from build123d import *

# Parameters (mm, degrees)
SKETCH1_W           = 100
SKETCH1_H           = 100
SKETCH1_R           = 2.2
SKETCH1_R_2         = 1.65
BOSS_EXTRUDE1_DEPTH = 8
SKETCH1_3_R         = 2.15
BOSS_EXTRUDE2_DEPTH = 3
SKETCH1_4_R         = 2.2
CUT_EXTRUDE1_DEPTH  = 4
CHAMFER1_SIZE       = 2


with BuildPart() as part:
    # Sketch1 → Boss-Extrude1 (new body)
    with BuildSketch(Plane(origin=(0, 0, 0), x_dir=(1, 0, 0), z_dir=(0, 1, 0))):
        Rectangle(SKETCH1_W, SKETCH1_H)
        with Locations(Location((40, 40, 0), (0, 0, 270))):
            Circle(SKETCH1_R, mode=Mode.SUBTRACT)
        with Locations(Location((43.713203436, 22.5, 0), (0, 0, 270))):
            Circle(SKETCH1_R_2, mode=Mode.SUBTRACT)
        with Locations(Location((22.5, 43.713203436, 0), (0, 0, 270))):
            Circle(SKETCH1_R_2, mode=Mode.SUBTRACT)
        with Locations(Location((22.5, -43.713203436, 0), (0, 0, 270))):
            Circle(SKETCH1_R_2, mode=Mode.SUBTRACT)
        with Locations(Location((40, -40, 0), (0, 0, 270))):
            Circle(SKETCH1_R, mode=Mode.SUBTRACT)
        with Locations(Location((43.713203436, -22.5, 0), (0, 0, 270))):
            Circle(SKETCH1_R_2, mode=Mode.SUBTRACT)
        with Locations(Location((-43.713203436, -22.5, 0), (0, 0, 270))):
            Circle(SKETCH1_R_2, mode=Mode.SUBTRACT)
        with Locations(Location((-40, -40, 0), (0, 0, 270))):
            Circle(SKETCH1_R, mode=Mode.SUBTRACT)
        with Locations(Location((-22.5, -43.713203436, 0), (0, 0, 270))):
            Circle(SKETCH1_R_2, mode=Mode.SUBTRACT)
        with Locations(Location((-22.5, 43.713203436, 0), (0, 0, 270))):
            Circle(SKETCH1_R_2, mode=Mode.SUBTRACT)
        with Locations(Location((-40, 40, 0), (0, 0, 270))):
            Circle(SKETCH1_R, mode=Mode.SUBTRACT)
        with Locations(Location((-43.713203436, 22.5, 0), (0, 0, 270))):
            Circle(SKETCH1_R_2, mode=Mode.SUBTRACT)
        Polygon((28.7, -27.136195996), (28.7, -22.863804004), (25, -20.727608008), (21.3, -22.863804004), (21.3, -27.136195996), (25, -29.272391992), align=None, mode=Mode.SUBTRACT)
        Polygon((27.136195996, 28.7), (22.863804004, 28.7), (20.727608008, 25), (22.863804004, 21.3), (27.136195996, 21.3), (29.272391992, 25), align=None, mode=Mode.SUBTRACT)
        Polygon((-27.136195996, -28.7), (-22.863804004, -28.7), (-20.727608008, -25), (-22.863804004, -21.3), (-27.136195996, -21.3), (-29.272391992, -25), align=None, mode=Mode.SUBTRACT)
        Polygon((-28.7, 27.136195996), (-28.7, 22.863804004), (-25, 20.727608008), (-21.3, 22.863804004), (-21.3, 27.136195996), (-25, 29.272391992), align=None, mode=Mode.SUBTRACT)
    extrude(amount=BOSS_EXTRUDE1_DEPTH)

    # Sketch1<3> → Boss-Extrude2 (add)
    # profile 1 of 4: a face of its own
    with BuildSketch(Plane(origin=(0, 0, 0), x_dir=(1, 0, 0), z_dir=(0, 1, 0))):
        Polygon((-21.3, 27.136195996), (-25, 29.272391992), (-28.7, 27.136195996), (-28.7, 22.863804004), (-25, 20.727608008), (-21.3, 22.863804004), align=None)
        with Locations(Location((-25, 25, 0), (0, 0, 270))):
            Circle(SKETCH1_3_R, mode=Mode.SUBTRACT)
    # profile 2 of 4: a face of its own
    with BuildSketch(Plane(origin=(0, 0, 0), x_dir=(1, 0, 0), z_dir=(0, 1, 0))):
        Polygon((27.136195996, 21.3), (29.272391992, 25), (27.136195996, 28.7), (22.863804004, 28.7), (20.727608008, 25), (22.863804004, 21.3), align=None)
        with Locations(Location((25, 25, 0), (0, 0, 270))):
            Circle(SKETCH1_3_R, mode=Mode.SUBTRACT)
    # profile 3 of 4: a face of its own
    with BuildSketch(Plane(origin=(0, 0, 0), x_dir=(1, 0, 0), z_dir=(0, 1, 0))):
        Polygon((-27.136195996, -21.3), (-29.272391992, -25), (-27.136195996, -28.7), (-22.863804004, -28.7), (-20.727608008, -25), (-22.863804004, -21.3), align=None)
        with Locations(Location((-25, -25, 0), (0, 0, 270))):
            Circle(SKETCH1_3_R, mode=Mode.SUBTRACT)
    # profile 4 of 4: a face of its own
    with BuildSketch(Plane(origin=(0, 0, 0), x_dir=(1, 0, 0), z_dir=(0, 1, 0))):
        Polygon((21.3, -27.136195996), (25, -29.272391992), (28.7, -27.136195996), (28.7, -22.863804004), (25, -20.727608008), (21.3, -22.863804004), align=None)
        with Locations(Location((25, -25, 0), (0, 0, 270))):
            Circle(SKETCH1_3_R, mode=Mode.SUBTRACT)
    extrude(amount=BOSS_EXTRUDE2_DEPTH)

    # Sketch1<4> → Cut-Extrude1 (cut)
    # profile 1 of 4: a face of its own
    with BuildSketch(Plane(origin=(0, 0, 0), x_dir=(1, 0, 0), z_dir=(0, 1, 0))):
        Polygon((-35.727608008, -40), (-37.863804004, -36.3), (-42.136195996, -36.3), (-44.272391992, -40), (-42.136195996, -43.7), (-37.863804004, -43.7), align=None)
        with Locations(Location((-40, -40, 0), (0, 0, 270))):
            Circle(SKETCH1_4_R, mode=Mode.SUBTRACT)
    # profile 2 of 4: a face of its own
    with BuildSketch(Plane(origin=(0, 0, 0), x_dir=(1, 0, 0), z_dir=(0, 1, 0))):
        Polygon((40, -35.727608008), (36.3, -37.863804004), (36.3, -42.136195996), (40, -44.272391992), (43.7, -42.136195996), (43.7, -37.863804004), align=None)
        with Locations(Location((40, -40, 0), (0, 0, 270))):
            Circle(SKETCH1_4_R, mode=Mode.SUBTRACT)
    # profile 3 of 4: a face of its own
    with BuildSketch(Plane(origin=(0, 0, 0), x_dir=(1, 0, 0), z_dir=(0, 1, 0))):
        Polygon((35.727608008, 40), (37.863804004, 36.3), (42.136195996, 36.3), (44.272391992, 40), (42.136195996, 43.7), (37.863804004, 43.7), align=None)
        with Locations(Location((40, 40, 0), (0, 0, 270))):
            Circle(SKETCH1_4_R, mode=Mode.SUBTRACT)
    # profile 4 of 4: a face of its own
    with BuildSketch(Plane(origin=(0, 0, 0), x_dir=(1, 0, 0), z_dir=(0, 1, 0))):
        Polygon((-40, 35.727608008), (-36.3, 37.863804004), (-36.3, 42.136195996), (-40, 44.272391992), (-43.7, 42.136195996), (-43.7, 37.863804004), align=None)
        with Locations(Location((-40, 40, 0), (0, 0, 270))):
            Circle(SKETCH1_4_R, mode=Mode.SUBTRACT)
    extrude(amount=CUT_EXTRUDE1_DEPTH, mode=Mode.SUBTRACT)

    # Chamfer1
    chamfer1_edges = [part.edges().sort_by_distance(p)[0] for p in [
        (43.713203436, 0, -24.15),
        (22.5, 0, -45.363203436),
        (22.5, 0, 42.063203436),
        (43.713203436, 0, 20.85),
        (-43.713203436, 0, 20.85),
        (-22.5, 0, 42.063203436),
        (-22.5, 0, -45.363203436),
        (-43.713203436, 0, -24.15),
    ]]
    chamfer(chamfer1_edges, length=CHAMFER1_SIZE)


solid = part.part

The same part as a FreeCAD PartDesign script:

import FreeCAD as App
import Part
import Sketcher
from FreeCAD import Vector
Q = App.Units.Quantity


def edges_at(feature, points):
    """Names of the edges that pass closest to the given points."""
    edges = feature.Shape.Edges
    near = lambda p: min(range(len(edges)), key=lambda i: edges[i].distToShape(Part.Vertex(*p))[0])
    return sorted({f"Edge{near(p) + 1}" for p in points})


def add_polygon(sketch, points):
    """Adds a closed chain of lines whose ends are joined by coincident constraints."""
    first, n = sketch.GeometryCount, len(points)
    for a, b in zip(points, points[1:] + points[:1]):
        sketch.addGeometry(Part.LineSegment(App.Vector(*a, 0), App.Vector(*b, 0)), False)
    for i in range(n):
        sketch.addConstraint(Sketcher.Constraint("Coincident", first + i, 2, first + (i + 1) % n, 1))

doc = App.newDocument("Part")
params = doc.addObject("Spreadsheet::Sheet", "Params")
for row, (alias, value) in enumerate([
    ("sketch1_diameter", "4.4 mm"),
    ("sketch1_diameter2", "3.3 mm"),
    ("sketch1_width", "100 mm"),
    ("pad1_length", "8 mm"),
    ("sketch2_diameter", "4.3 mm"),
    ("pad2_length", "3 mm"),
    ("sketch3_diameter", "4.4 mm"),
    ("pocket1_length", "4 mm"),
    ("chamfer_size", "2 mm"),
], start=1):
    params.set(f"A{row}", alias)
    params.set(f"B{row}", "=" + value)
    params.setAlias(f"B{row}", alias)

body = doc.addObject("PartDesign::Body", "Body")

sketch1 = body.newObject("Sketcher::SketchObject", "Sketch")
sketch1.AttachmentSupport = (doc.getObject("XZ_Plane"), [""])
sketch1.MapMode = "FlatFace"
add_polygon(sketch1, [(-50, -50), (-50, 50), (50, 50), (50, -50)])
sketch1.addGeometry(Part.Circle(Vector(-40, 40, 0), Vector(0, 0, 1), 2.2), False)
add_polygon(sketch1, [(-22.9, 28.7), (-27.1, 28.7), (-29.3, 25), (-27.1, 21.3), (-22.9, 21.3), (-20.7, 25)])
sketch1.addGeometry(Part.Circle(Vector(-22.5, 43.7, 0), Vector(0, 0, 1), 1.6), False)
sketch1.addGeometry(Part.Circle(Vector(-43.7, 22.5, 0), Vector(0, 0, 1), 1.6), False)
sketch1.addGeometry(Part.Circle(Vector(22.5, 43.7, 0), Vector(0, 0, 1), 1.6), False)
sketch1.addGeometry(Part.Circle(Vector(40, 40, 0), Vector(0, 0, 1), 2.2), False)
add_polygon(sketch1, [(28.7, 22.9), (28.7, 27.1), (25, 29.3), (21.3, 27.1), (21.3, 22.9), (25, 20.7)])
sketch1.addGeometry(Part.Circle(Vector(43.7, 22.5, 0), Vector(0, 0, 1), 1.6), False)
sketch1.addGeometry(Part.Circle(Vector(-43.7, -22.5, 0), Vector(0, 0, 1), 1.6), False)
add_polygon(sketch1, [(-28.7, -22.9), (-28.7, -27.1), (-25, -29.3), (-21.3, -27.1), (-21.3, -22.9), (-25, -20.7)])
sketch1.addGeometry(Part.Circle(Vector(-40, -40, 0), Vector(0, 0, 1), 2.2), False)
sketch1.addGeometry(Part.Circle(Vector(-22.5, -43.7, 0), Vector(0, 0, 1), 1.6), False)
sketch1.addGeometry(Part.Circle(Vector(43.7, -22.5, 0), Vector(0, 0, 1), 1.6), False)
sketch1.addGeometry(Part.Circle(Vector(22.5, -43.7, 0), Vector(0, 0, 1), 1.6), False)
add_polygon(sketch1, [(22.9, -28.7), (27.1, -28.7), (29.3, -25), (27.1, -21.3), (22.9, -21.3), (20.7, -25)])
sketch1.addGeometry(Part.Circle(Vector(40, -40, 0), Vector(0, 0, 1), 2.2), False)
sketch1.addConstraint(Sketcher.Constraint("Vertical", 0))
sketch1.addConstraint(Sketcher.Constraint("Horizontal", 1))
sketch1.addConstraint(Sketcher.Constraint("Vertical", 2))
sketch1.addConstraint(Sketcher.Constraint("Horizontal", 3))
sketch1.addConstraint(Sketcher.Constraint("Horizontal", 5))
sketch1.addConstraint(Sketcher.Constraint("Horizontal", 8))
sketch1.addConstraint(Sketcher.Constraint("Vertical", 15))
sketch1.addConstraint(Sketcher.Constraint("Vertical", 18))
sketch1.addConstraint(Sketcher.Constraint("Vertical", 23))
sketch1.addConstraint(Sketcher.Constraint("Vertical", 26))
sketch1.addConstraint(Sketcher.Constraint("Horizontal", 33))
sketch1.addConstraint(Sketcher.Constraint("Horizontal", 36))
sketch1.addConstraint(Sketcher.Constraint("Equal", 11, 12))
sketch1.addConstraint(Sketcher.Constraint("Equal", 12, 13))
sketch1.addConstraint(Sketcher.Constraint("Equal", 4, 14))
sketch1.addConstraint(Sketcher.Constraint("Equal", 13, 21))
sketch1.addConstraint(Sketcher.Constraint("Equal", 21, 22))
sketch1.addConstraint(Sketcher.Constraint("Equal", 14, 29))
sketch1.addConstraint(Sketcher.Constraint("Equal", 22, 30))
sketch1.addConstraint(Sketcher.Constraint("Equal", 30, 31))
sketch1.addConstraint(Sketcher.Constraint("Equal", 31, 32))
sketch1.addConstraint(Sketcher.Constraint("Equal", 29, 39))
sketch1.addConstraint(Sketcher.Constraint("Symmetric", 21, 3, 22, 3, -1, 1))
sketch1.addConstraint(Sketcher.Constraint("Symmetric", 14, 3, 29, 3, -1, 1))
sketch1.addConstraint(Sketcher.Constraint("Symmetric", 13, 3, 30, 3, -1, 1))
sketch1.addConstraint(Sketcher.Constraint("Symmetric", 12, 3, 31, 3, -1, 1))
sketch1.addConstraint(Sketcher.Constraint("Symmetric", 11, 3, 32, 3, -1, 1))
sketch1.addConstraint(Sketcher.Constraint("Symmetric", 4, 3, 39, 3, -1, 1))
sketch1.addConstraint(Sketcher.Constraint("Symmetric", 0, 2, 2, 2, -1, 1))
sketch1.addConstraint(Sketcher.Constraint("Symmetric", 15, 2, 23, 2, -1, 1))
sketch1.addConstraint(Sketcher.Constraint("Symmetric", 16, 2, 24, 2, -1, 1))
sketch1.addConstraint(Sketcher.Constraint("Symmetric", 17, 2, 25, 2, -1, 1))
sketch1.addConstraint(Sketcher.Constraint("Symmetric", 19, 2, 27, 2, -1, 1))
sketch1.addConstraint(Sketcher.Constraint("Symmetric", 5, 2, 33, 2, -1, 1))
sketch1.addConstraint(Sketcher.Constraint("Symmetric", 6, 2, 34, 2, -1, 1))
sketch1.addConstraint(Sketcher.Constraint("Symmetric", 7, 2, 35, 2, -1, 1))
sketch1.addConstraint(Sketcher.Constraint("Symmetric", 9, 2, 37, 2, -1, 1))
sketch1.addConstraint(Sketcher.Constraint("Symmetric", 11, 3, 13, 3, -2))
sketch1.addConstraint(Sketcher.Constraint("Symmetric", 4, 3, 14, 3, -2))
sketch1.addConstraint(Sketcher.Constraint("Symmetric", 12, 3, 21, 3, -2))
sketch1.addConstraint(Sketcher.Constraint("Parallel", 6, 9))
sketch1.addConstraint(Sketcher.Constraint("Parallel", 7, 10))
sketch1.addConstraint(Sketcher.Constraint("Perpendicular", 9, 16))
sketch1.addConstraint(Sketcher.Constraint("Perpendicular", 10, 17))
sketch1.addConstraint(Sketcher.Constraint("Parallel", 16, 19))
sketch1.addConstraint(Sketcher.Constraint("Parallel", 17, 20))
sketch1.addConstraint(Sketcher.Constraint("Parallel", 24, 27))
sketch1.addConstraint(Sketcher.Constraint("Parallel", 25, 28))
sketch1.addConstraint(Sketcher.Constraint("Parallel", 34, 37))
sketch1.addConstraint(Sketcher.Constraint("Parallel", 35, 38))
sketch1.addConstraint(Sketcher.Constraint("Horizontal", 6, 2, 9, 2))
sketch1.addConstraint(Sketcher.Constraint("Horizontal", 15, 2, 17, 2))
sketch1.addConstraint(Sketcher.Constraint("Horizontal", 18, 2, 20, 2))
sketch1.addConstraint(Sketcher.Constraint("Vertical", 5, 2, 7, 2))
sketch1.addConstraint(Sketcher.Constraint("Vertical", 8, 2, 10, 2))
sketch1.addConstraint(Sketcher.Constraint("Equal", 3, 0))
sketch1.addConstraint(Sketcher.Constraint("Equal", 36, 15))
sketch1.addConstraint(Sketcher.Constraint("Equal", 10, 16))
sketch1.addConstraint(Sketcher.Constraint("Diameter", 4, Q("4.4 mm")))
sketch1.addConstraint(Sketcher.Constraint("Diameter", 11, Q("3.3 mm")))
sketch1.addConstraint(Sketcher.Constraint("DistanceX", 1, 1, 1, 2, Q("100 mm")))
sketch1.addConstraint(Sketcher.Constraint("Angle", 6, Q("-120 deg")))
sketch1.addConstraint(Sketcher.Constraint("DistanceX", 4, 3, -1, 1, Q("40 mm")))
sketch1.addConstraint(Sketcher.Constraint("DistanceY", -1, 1, 4, 3, Q("40 mm")))
sketch1.addConstraint(Sketcher.Constraint("DistanceY", -1, 1, 6, 2, Q("25 mm")))
sketch1.addConstraint(Sketcher.Constraint("DistanceX", -1, 1, 16, 2, Q("25 mm")))
sketch1.addConstraint(Sketcher.Constraint("DistanceX", 11, 3, 13, 3, Q("45 mm")))
sketch1.addConstraint(Sketcher.Constraint("DistanceY", 22, 3, 12, 3, Q("45 mm")))
sketch1.addConstraint(Sketcher.Constraint("DistanceY", -1, 1, 5, 2, Q("28.7 mm")))
sketch1.addConstraint(Sketcher.Constraint("DistanceX", 5, 2, 5, 1, Q("4.272392 mm")))
sketch1.addConstraint(Sketcher.Constraint("DistanceX", 12, 3, 8, 2, Q("20.849399 mm")))
sketch1.addConstraint(Sketcher.Constraint("DistanceY", 18, 2, 13, 3, Q("20.849399 mm")))
sketch1.addConstraint(Sketcher.Constraint("DistanceX", 6, 2, -1, 1, Q("29.272392 mm")))
sketch1.addConstraint(Sketcher.Constraint("DistanceY", -1, 1, 16, 2, Q("29.272392 mm")))
sketch1.setExpression("Constraints[86]", "Params.sketch1_diameter")
sketch1.setExpression("Constraints[87]", "Params.sketch1_diameter2")
sketch1.setExpression("Constraints[88]", "Params.sketch1_width")
pad1 = body.newObject("PartDesign::Pad", "Pad")
pad1.Profile = sketch1
pad1.setExpression("Length", "Params.pad1_length")
pad1.Reversed = True

sketch2 = body.newObject("Sketcher::SketchObject", "Sketch001")
sketch2.AttachmentSupport = (doc.getObject("XZ_Plane"), [""])
sketch2.MapMode = "FlatFace"
add_polygon(sketch2, [(-21.3, -27.1), (-25, -29.3), (-28.7, -27.1), (-28.7, -22.9), (-25, -20.7), (-21.3, -22.9)])
sketch2.addGeometry(Part.Circle(Vector(-25, -25, 0), Vector(0, 0, 1), 2.1), False)
add_polygon(sketch2, [(27.1, -21.3), (29.3, -25), (27.1, -28.7), (22.9, -28.7), (20.7, -25), (22.9, -21.3)])
sketch2.addGeometry(Part.Circle(Vector(25, -25, 0), Vector(0, 0, 1), 2.1), False)
add_polygon(sketch2, [(-27.1, 21.3), (-29.3, 25), (-27.1, 28.7), (-22.9, 28.7), (-20.7, 25), (-22.9, 21.3)])
sketch2.addGeometry(Part.Circle(Vector(-25, 25, 0), Vector(0, 0, 1), 2.1), False)
add_polygon(sketch2, [(21.3, 27.1), (25, 29.3), (28.7, 27.1), (28.7, 22.9), (25, 20.7), (21.3, 22.9)])
sketch2.addGeometry(Part.Circle(Vector(25, 25, 0), Vector(0, 0, 1), 2.1), False)
sketch2.addConstraint(Sketcher.Constraint("Vertical", 2))
sketch2.addConstraint(Sketcher.Constraint("Vertical", 5))
sketch2.addConstraint(Sketcher.Constraint("Horizontal", 9))
sketch2.addConstraint(Sketcher.Constraint("Horizontal", 12))
sketch2.addConstraint(Sketcher.Constraint("Horizontal", 16))
sketch2.addConstraint(Sketcher.Constraint("Horizontal", 19))
sketch2.addConstraint(Sketcher.Constraint("Vertical", 23))
sketch2.addConstraint(Sketcher.Constraint("Vertical", 26))
sketch2.addConstraint(Sketcher.Constraint("Equal", 6, 13))
sketch2.addConstraint(Sketcher.Constraint("Equal", 13, 20))
sketch2.addConstraint(Sketcher.Constraint("Equal", 20, 27))
sketch2.addConstraint(Sketcher.Constraint("Symmetric", 13, 3, 20, 3, -1, 1))
sketch2.addConstraint(Sketcher.Constraint("Symmetric", 6, 3, 27, 3, -1, 1))
sketch2.addConstraint(Sketcher.Constraint("Symmetric", 7, 2, 14, 2, -1, 1))
sketch2.addConstraint(Sketcher.Constraint("Symmetric", 8, 2, 15, 2, -1, 1))
sketch2.addConstraint(Sketcher.Constraint("Symmetric", 10, 2, 17, 2, -1, 1))
sketch2.addConstraint(Sketcher.Constraint("Symmetric", 11, 2, 18, 2, -1, 1))
sketch2.addConstraint(Sketcher.Constraint("Symmetric", 0, 2, 21, 2, -1, 1))
sketch2.addConstraint(Sketcher.Constraint("Symmetric", 1, 2, 22, 2, -1, 1))
sketch2.addConstraint(Sketcher.Constraint("Symmetric", 3, 2, 24, 2, -1, 1))
sketch2.addConstraint(Sketcher.Constraint("Symmetric", 4, 2, 25, 2, -1, 1))
sketch2.addConstraint(Sketcher.Constraint("Symmetric", 6, 3, 13, 3, -2))
sketch2.addConstraint(Sketcher.Constraint("Parallel", 0, 3))
sketch2.addConstraint(Sketcher.Constraint("Parallel", 1, 4))
sketch2.addConstraint(Sketcher.Constraint("Perpendicular", 3, 7))
sketch2.addConstraint(Sketcher.Constraint("Perpendicular", 4, 8))
sketch2.addConstraint(Sketcher.Constraint("Parallel", 7, 10))
sketch2.addConstraint(Sketcher.Constraint("Parallel", 8, 11))
sketch2.addConstraint(Sketcher.Constraint("Parallel", 10, 14))
sketch2.addConstraint(Sketcher.Constraint("Parallel", 14, 17))
sketch2.addConstraint(Sketcher.Constraint("Perpendicular", 17, 21))
sketch2.addConstraint(Sketcher.Constraint("Parallel", 21, 24))
sketch2.addConstraint(Sketcher.Constraint("Horizontal", 2, 2, 4, 2))
sketch2.addConstraint(Sketcher.Constraint("Horizontal", 1, 2, 5, 2))
sketch2.addConstraint(Sketcher.Constraint("Horizontal", 13, 3, 7, 2))
sketch2.addConstraint(Sketcher.Constraint("Horizontal", 7, 2, 10, 2))
sketch2.addConstraint(Sketcher.Constraint("Vertical", 20, 3, 0, 2))
sketch2.addConstraint(Sketcher.Constraint("Vertical", 0, 2, 3, 2))
sketch2.addConstraint(Sketcher.Constraint("Vertical", 9, 2, 11, 2))
sketch2.addConstraint(Sketcher.Constraint("Equal", 19, 2))
sketch2.addConstraint(Sketcher.Constraint("Equal", 4, 7))
sketch2.addConstraint(Sketcher.Constraint("Diameter", 6, Q("4.3 mm")))
sketch2.addConstraint(Sketcher.Constraint("Angle", 0, Q("-150 deg")))
sketch2.addConstraint(Sketcher.Constraint("DistanceX", 6, 3, -1, 1, Q("25 mm")))
sketch2.addConstraint(Sketcher.Constraint("DistanceY", 6, 3, -1, 1, Q("25 mm")))
sketch2.addConstraint(Sketcher.Constraint("DistanceX", 1, 2, -1, 1, Q("28.7 mm")))
sketch2.addConstraint(Sketcher.Constraint("DistanceX", 9, 2, 9, 1, Q("4.272392 mm")))
sketch2.addConstraint(Sketcher.Constraint("DistanceY", 0, 2, -1, 1, Q("29.272392 mm")))
sketch2.addConstraint(Sketcher.Constraint("DistanceX", -1, 1, 7, 2, Q("29.272392 mm")))
sketch2.setExpression("Constraints[65]", "Params.sketch2_diameter")
pad2 = body.newObject("PartDesign::Pad", "Pad001")
pad2.Profile = sketch2
pad2.setExpression("Length", "Params.pad2_length")
pad2.Reversed = True

sketch3 = body.newObject("Sketcher::SketchObject", "Sketch002")
sketch3.AttachmentSupport = (doc.getObject("XZ_Plane"), [""])
sketch3.MapMode = "FlatFace"
add_polygon(sketch3, [(-35.7, 40), (-37.9, 36.3), (-42.1, 36.3), (-44.3, 40), (-42.1, 43.7), (-37.9, 43.7)])
sketch3.addGeometry(Part.Circle(Vector(-40, 40, 0), Vector(0, 0, 1), 2.2), False)
add_polygon(sketch3, [(40, 35.7), (36.3, 37.9), (36.3, 42.1), (40, 44.3), (43.7, 42.1), (43.7, 37.9)])
sketch3.addGeometry(Part.Circle(Vector(40, 40, 0), Vector(0, 0, 1), 2.2), False)
add_polygon(sketch3, [(35.7, -40), (37.9, -36.3), (42.1, -36.3), (44.3, -40), (42.1, -43.7), (37.9, -43.7)])
sketch3.addGeometry(Part.Circle(Vector(40, -40, 0), Vector(0, 0, 1), 2.2), False)
add_polygon(sketch3, [(-40, -35.7), (-36.3, -37.9), (-36.3, -42.1), (-40, -44.3), (-43.7, -42.1), (-43.7, -37.9)])
sketch3.addGeometry(Part.Circle(Vector(-40, -40, 0), Vector(0, 0, 1), 2.2), False)
sketch3.addConstraint(Sketcher.Constraint("Horizontal", 1))
sketch3.addConstraint(Sketcher.Constraint("Horizontal", 4))
sketch3.addConstraint(Sketcher.Constraint("Vertical", 8))
sketch3.addConstraint(Sketcher.Constraint("Vertical", 11))
sketch3.addConstraint(Sketcher.Constraint("Horizontal", 15))
sketch3.addConstraint(Sketcher.Constraint("Horizontal", 18))
sketch3.addConstraint(Sketcher.Constraint("Vertical", 22))
sketch3.addConstraint(Sketcher.Constraint("Vertical", 25))
sketch3.addConstraint(Sketcher.Constraint("Equal", 6, 13))
sketch3.addConstraint(Sketcher.Constraint("Equal", 13, 20))
sketch3.addConstraint(Sketcher.Constraint("Equal", 20, 27))
sketch3.addConstraint(Sketcher.Constraint("Symmetric", 6, 3, 20, 3, -1, 1))
sketch3.addConstraint(Sketcher.Constraint("Symmetric", 13, 3, 27, 3, -1, 1))
sketch3.addConstraint(Sketcher.Constraint("Symmetric", 0, 2, 14, 2, -1, 1))
sketch3.addConstraint(Sketcher.Constraint("Symmetric", 2, 2, 16, 2, -1, 1))
sketch3.addConstraint(Sketcher.Constraint("Symmetric", 3, 2, 17, 2, -1, 1))
sketch3.addConstraint(Sketcher.Constraint("Symmetric", 5, 2, 19, 2, -1, 1))
sketch3.addConstraint(Sketcher.Constraint("Symmetric", 7, 2, 21, 2, -1, 1))
sketch3.addConstraint(Sketcher.Constraint("Symmetric", 9, 2, 23, 2, -1, 1))
sketch3.addConstraint(Sketcher.Constraint("Symmetric", 10, 2, 24, 2, -1, 1))
sketch3.addConstraint(Sketcher.Constraint("Symmetric", 12, 2, 26, 2, -1, 1))
sketch3.addConstraint(Sketcher.Constraint("Symmetric", 6, 3, 13, 3, -2))
sketch3.addConstraint(Sketcher.Constraint("Parallel", 0, 3))
sketch3.addConstraint(Sketcher.Constraint("Parallel", 2, 5))
sketch3.addConstraint(Sketcher.Constraint("Perpendicular", 3, 7))
sketch3.addConstraint(Sketcher.Constraint("Perpendicular", 5, 9))
sketch3.addConstraint(Sketcher.Constraint("Parallel", 7, 10))
sketch3.addConstraint(Sketcher.Constraint("Parallel", 9, 12))
sketch3.addConstraint(Sketcher.Constraint("Perpendicular", 12, 16))
sketch3.addConstraint(Sketcher.Constraint("Parallel", 16, 19))
sketch3.addConstraint(Sketcher.Constraint("Perpendicular", 19, 23))
sketch3.addConstraint(Sketcher.Constraint("Parallel", 23, 26))
sketch3.addConstraint(Sketcher.Constraint("Horizontal", 13, 3, 2, 2))
sketch3.addConstraint(Sketcher.Constraint("Horizontal", 2, 2, 5, 2))
sketch3.addConstraint(Sketcher.Constraint("Horizontal", 8, 2, 10, 2))
sketch3.addConstraint(Sketcher.Constraint("Horizontal", 7, 2, 11, 2))
sketch3.addConstraint(Sketcher.Constraint("Vertical", 1, 2, 3, 2))
sketch3.addConstraint(Sketcher.Constraint("Vertical", 0, 2, 4, 2))
sketch3.addConstraint(Sketcher.Constraint("Vertical", 20, 3, 9, 2))
sketch3.addConstraint(Sketcher.Constraint("Equal", 18, 8))
sketch3.addConstraint(Sketcher.Constraint("Equal", 5, 7))
sketch3.addConstraint(Sketcher.Constraint("Diameter", 6, Q("4.4 mm")))
sketch3.addConstraint(Sketcher.Constraint("Angle", 0, Q("-120 deg")))
sketch3.addConstraint(Sketcher.Constraint("DistanceX", 6, 3, -1, 1, Q("40 mm")))
sketch3.addConstraint(Sketcher.Constraint("DistanceY", -1, 1, 6, 3, Q("40 mm")))
sketch3.addConstraint(Sketcher.Constraint("DistanceY", -1, 1, 0, 2, Q("36.3 mm")))
sketch3.addConstraint(Sketcher.Constraint("DistanceX", 1, 2, 1, 1, Q("4.272392 mm")))
sketch3.addConstraint(Sketcher.Constraint("DistanceX", 2, 2, -1, 1, Q("44.272392 mm")))
sketch3.addConstraint(Sketcher.Constraint("DistanceY", -1, 1, 9, 2, Q("44.272392 mm")))
sketch3.setExpression("Constraints[65]", "Params.sketch3_diameter")
pocket1 = body.newObject("PartDesign::Pocket", "Pocket")
pocket1.Profile = sketch3
pocket1.setExpression("Length", "Params.pocket1_length")
doc.recompute()

chamfer = body.newObject("PartDesign::Chamfer", "Chamfer")
chamfer.Base = (pocket1, edges_at(pocket1, [
    (43.713, 0, -24.15),
    (22.5, 0, -45.363),
    (22.5, 0, 42.063),
    (43.713, 0, 20.85),
    (-43.713, 0, 20.85),
    (-22.5, 0, 42.063),
    (-22.5, 0, -45.363),
    (-43.713, 0, -24.15),
]))
chamfer.setExpression("Size", "Params.chamfer_size")

doc.recompute()
